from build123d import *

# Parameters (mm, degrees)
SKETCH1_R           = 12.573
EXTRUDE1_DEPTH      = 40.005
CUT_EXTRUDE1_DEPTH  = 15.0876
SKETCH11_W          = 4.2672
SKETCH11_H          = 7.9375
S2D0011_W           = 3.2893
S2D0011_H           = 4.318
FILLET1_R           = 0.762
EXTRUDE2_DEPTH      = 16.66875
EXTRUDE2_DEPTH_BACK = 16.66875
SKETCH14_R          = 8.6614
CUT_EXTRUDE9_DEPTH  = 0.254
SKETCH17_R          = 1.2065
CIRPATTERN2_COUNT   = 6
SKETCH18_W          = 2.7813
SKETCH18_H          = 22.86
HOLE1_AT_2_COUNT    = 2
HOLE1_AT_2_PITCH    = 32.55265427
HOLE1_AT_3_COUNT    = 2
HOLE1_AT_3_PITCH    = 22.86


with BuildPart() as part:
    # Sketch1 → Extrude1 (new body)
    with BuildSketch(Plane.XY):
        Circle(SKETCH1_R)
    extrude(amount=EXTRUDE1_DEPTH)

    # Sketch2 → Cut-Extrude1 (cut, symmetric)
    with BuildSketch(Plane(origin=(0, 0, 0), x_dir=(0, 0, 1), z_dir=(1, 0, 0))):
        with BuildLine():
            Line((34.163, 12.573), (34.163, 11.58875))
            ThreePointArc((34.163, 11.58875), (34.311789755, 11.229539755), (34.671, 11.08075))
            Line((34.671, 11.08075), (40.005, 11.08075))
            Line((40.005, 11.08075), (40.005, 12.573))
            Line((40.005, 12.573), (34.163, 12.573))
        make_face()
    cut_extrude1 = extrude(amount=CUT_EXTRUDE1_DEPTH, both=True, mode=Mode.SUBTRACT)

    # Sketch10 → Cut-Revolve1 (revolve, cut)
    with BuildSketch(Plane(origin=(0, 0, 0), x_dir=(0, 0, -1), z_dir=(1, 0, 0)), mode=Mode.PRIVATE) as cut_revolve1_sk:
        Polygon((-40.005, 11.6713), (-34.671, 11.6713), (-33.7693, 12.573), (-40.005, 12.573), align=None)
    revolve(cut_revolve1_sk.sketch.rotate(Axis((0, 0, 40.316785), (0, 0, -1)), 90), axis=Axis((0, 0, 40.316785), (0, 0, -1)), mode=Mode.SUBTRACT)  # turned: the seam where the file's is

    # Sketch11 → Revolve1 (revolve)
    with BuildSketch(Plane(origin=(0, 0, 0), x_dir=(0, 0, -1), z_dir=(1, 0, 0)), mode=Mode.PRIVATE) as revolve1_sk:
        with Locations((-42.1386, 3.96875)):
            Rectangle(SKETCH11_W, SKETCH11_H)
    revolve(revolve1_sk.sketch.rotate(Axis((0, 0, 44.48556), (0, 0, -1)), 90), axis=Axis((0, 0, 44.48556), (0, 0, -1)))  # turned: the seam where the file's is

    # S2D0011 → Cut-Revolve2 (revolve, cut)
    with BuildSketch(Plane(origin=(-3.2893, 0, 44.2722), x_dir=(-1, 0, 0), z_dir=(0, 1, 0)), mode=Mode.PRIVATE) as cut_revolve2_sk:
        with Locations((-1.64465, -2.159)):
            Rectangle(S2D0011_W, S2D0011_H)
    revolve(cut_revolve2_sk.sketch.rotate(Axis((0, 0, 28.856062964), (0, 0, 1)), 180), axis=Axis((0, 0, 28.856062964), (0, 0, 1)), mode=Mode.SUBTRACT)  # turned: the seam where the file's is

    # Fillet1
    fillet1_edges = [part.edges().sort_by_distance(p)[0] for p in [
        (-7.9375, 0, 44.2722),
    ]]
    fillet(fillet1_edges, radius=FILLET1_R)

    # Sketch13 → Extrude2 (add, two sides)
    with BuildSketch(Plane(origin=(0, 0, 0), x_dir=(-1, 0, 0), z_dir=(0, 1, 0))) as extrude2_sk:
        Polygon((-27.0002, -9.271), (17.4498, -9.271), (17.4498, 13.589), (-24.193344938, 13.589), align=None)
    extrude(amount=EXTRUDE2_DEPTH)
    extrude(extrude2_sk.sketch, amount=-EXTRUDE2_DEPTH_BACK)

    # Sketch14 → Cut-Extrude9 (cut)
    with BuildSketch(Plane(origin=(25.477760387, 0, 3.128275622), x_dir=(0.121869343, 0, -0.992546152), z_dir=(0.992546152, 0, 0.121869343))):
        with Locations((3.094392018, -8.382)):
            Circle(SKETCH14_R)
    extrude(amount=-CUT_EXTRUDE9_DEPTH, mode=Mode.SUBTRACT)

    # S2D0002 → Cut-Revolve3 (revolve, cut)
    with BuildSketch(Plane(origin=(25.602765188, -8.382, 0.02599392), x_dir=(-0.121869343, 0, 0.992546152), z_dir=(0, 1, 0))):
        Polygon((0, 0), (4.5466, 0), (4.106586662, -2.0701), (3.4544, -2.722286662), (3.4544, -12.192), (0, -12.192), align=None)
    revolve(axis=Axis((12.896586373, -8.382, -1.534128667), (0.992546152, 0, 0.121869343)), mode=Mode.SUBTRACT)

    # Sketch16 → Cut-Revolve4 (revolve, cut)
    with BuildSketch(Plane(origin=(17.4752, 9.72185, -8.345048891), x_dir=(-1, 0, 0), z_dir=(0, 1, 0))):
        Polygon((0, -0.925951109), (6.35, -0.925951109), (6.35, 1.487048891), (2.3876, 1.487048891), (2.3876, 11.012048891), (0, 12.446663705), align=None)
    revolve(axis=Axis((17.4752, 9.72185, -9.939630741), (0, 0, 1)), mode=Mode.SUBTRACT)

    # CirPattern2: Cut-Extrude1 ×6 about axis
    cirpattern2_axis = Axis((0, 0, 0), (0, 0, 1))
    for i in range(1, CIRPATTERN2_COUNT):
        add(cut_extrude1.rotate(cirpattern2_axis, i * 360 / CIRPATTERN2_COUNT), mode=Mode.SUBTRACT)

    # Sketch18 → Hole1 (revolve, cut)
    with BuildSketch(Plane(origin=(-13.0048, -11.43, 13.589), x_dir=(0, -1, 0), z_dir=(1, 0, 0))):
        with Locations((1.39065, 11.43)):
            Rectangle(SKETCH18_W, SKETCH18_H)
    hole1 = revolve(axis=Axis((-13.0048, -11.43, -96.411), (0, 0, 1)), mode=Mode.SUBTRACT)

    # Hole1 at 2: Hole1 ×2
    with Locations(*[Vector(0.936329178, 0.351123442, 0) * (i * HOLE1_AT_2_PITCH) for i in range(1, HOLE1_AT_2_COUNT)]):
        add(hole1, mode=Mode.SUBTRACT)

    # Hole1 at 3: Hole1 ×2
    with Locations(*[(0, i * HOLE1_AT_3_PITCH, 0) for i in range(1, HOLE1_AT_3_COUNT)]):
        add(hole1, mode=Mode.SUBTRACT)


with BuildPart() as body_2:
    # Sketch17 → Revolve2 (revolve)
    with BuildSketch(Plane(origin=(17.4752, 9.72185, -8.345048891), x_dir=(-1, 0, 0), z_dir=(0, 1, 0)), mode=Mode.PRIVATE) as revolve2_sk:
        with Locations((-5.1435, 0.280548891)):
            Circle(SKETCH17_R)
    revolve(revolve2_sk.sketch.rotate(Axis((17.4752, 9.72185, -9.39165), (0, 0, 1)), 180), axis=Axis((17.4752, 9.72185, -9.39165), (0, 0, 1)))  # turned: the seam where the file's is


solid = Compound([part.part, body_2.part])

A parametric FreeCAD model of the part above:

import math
import FreeCAD as App
import Part
import Sketcher
from FreeCAD import Vector
Q = App.Units.Quantity


def edges_at(feature, points):
    """Names of the edges that pass closest to the given points."""
    edges = feature.Shape.Edges
    near = lambda p: min(range(len(edges)), key=lambda i: edges[i].distToShape(Part.Vertex(*p))[0])
    return sorted({f"Edge{near(p) + 1}" for p in points})

doc = App.newDocument("Part")
body = doc.addObject("PartDesign::Body", "Body")

# Sketch on XY plane
sketch1 = doc.addObject("Sketcher::SketchObject", "Sketch")
body.addObject(sketch1)
sketch1.AttachmentSupport = (doc.XY_Plane, [""])
sketch1.MapMode = "FlatFace"
sketch1.addGeometry(Part.Circle(Vector(0, 0, 0), Vector(0, 0, 1), 13), False)
sketch1.addConstraint(Sketcher.Constraint("Coincident", 0, 3, -1, 1))
sketch1.addConstraint(Sketcher.Constraint("Diameter", 0, Q("0.99 in")))
pad1 = doc.addObject("PartDesign::Pad", "Pad")
body.addObject(pad1)
pad1.Profile = sketch1
pad1.Length = Q("1.575 in")

# Sketch on YZ plane
sketch2 = doc.addObject("Sketcher::SketchObject", "Sketch001")
body.addObject(sketch2)
sketch2.AttachmentSupport = (doc.YZ_Plane, [""])
sketch2.MapMode = "FlatFace"
sketch2.addGeometry(Part.LineSegment(Vector(-12.6, 34.2, 0), Vector(-11.6, 34.2, 0)), False)
sketch2.addGeometry(Part.ArcOfCircle(Part.Circle(Vector(-11.6, 34.7, 0), Vector(0, 0, 1), 0.5), math.radians(-90), math.radians(0)), False)
sketch2.addGeometry(Part.LineSegment(Vector(-11.1, 34.7, 0), Vector(-11.1, 40, 0)), False)
sketch2.addGeometry(Part.LineSegment(Vector(-11.1, 40, 0), Vector(-12.6, 40, 0)), False)
sketch2.addGeometry(Part.LineSegment(Vector(-12.6, 40, 0), Vector(-12.6, 34.2, 0)), False)
sketch2.addConstraint(Sketcher.Constraint("Tangent", 0, 2, 1, 1))
sketch2.addConstraint(Sketcher.Constraint("Tangent", 1, 2, 2, 1))
sketch2.addConstraint(Sketcher.Constraint("Coincident", 2, 2, 3, 1))
sketch2.addConstraint(Sketcher.Constraint("Coincident", 3, 2, 4, 1))
sketch2.addConstraint(Sketcher.Constraint("Coincident", 4, 2, 0, 1))
sketch2.addConstraint(Sketcher.Constraint("Horizontal", 0))
sketch2.addConstraint(Sketcher.Constraint("Vertical", 2))
sketch2.addConstraint(Sketcher.Constraint("Horizontal", 3))
sketch2.addConstraint(Sketcher.Constraint("Vertical", 4))
sketch2.addConstraint(Sketcher.Constraint("Radius", 1, Q("0.02 in")))
sketch2.addConstraint(Sketcher.Constraint("DistanceY", 2, 1, 2, 2, Q("0.21 in")))
sketch2.addConstraint(Sketcher.Constraint("DistanceY", -1, 1, 1, 3, Q("1.365 in")))
sketch2.addConstraint(Sketcher.Constraint("DistanceX", 3, 2, -1, 1, Q("0.495 in")))
sketch2.addConstraint(Sketcher.Constraint("DistanceX", 0, 1, 0, 2, 0.98425))
pocket1 = doc.addObject("PartDesign::Pocket", "Pocket")
body.addObject(pocket1)
pocket1.Profile = sketch2
pocket1.Length = Q("1.188 in")
pocket1.Midplane = True

# Sketch on YZ plane
sketch3 = doc.addObject("Sketcher::SketchObject", "Sketch002")
body.addObject(sketch3)
sketch3.AttachmentSupport = (doc.YZ_Plane, [""])
sketch3.MapMode = "FlatFace"
sketch3.addGeometry(Part.LineSegment(Vector(11.7, 40, 0), Vector(11.7, 34.7, 0)), False)
sketch3.addGeometry(Part.LineSegment(Vector(11.7, 34.7, 0), Vector(12.6, 33.8, 0)), False)
sketch3.addGeometry(Part.LineSegment(Vector(12.6, 33.8, 0), Vector(12.6, 40, 0)), False)
sketch3.addGeometry(Part.LineSegment(Vector(12.6, 40, 0), Vector(11.7, 40, 0)), False)
sketch3.addConstraint(Sketcher.Constraint("Coincident", 0, 2, 1, 1))
sketch3.addConstraint(Sketcher.Constraint("Coincident", 1, 2, 2, 1))
sketch3.addConstraint(Sketcher.Constraint("Coincident", 2, 2, 3, 1))
sketch3.addConstraint(Sketcher.Constraint("Coincident", 3, 2, 0, 1))
sketch3.addConstraint(Sketcher.Constraint("Vertical", 0))
sketch3.addConstraint(Sketcher.Constraint("Vertical", 2))
sketch3.addConstraint(Sketcher.Constraint("Horizontal", 3))
sketch3.addConstraint(Sketcher.Constraint("Angle", 1, Q("-45 deg")))
sketch3.addConstraint(Sketcher.Constraint("DistanceY", 0, 2, 0, 1, Q("0.21 in")))
sketch3.addConstraint(Sketcher.Constraint("DistanceX", 3, 2, 3, 1, Q("0.0355 in")))
sketch3.addConstraint(Sketcher.Constraint("DistanceY", -1, 1, 0, 2, Q("1.365 in")))
sketch3.addConstraint(Sketcher.Constraint("DistanceX", -1, 1, 1, 2, Q("0.495 in")))
groove = doc.addObject("PartDesign::Groove", "Groove")
body.addObject(groove)
groove.Profile = sketch3
groove.ReferenceAxis = (sketch3, ["V_Axis"])
groove.Angle = 360

# Sketch on YZ plane
sketch4 = doc.addObject("Sketcher::SketchObject", "Sketch003")
body.addObject(sketch4)
sketch4.AttachmentSupport = (doc.YZ_Plane, [""])
sketch4.MapMode = "FlatFace"
sketch4.addGeometry(Part.LineSegment(Vector(7.9, 44.3, 0), Vector(0, 44.3, 0)), False)
sketch4.addGeometry(Part.LineSegment(Vector(0, 44.3, 0), Vector(0, 40, 0)), False)
sketch4.addGeometry(Part.LineSegment(Vector(0, 40, 0), Vector(7.9, 40, 0)), False)
sketch4.addGeometry(Part.LineSegment(Vector(7.9, 40, 0), Vector(7.9, 44.3, 0)), False)
sketch4.addConstraint(Sketcher.Constraint("Coincident", 0, 2, 1, 1))
sketch4.addConstraint(Sketcher.Constraint("Coincident", 1, 2, 2, 1))
sketch4.addConstraint(Sketcher.Constraint("Coincident", 2, 2, 3, 1))
sketch4.addConstraint(Sketcher.Constraint("Coincident", 3, 2, 0, 1))
sketch4.addConstraint(Sketcher.Constraint("Horizontal", 0))
sketch4.addConstraint(Sketcher.Constraint("Vertical", 1))
sketch4.addConstraint(Sketcher.Constraint("Horizontal", 2))
sketch4.addConstraint(Sketcher.Constraint("Vertical", 3))
sketch4.addConstraint(Sketcher.Constraint("PointOnObject", 0, 2, -2))
sketch4.addConstraint(Sketcher.Constraint("DistanceX", 0, 2, 0, 1, Q("0.3125 in")))
sketch4.addConstraint(Sketcher.Constraint("DistanceY", 1, 2, 1, 1, Q("0.168 in")))
sketch4.addConstraint(Sketcher.Constraint("DistanceY", -1, 1, 0, 2, Q("1.743 in")))
revolution = doc.addObject("PartDesign::Revolution", "Revolution")
body.addObject(revolution)
revolution.Profile = sketch4
revolution.ReferenceAxis = (sketch4, ["V_Axis"])
revolution.Angle = 360

# Sketch on XZ plane
sketch5 = doc.addObject("Sketcher::SketchObject", "Sketch004")
body.addObject(sketch5)
sketch5.AttachmentSupport = (doc.XZ_Plane, [""])
sketch5.MapMode = "FlatFace"
sketch5.addGeometry(Part.LineSegment(Vector(0, 44.3, 0), Vector(0, 40, 0)), False)
sketch5.addGeometry(Part.LineSegment(Vector(0, 40, 0), Vector(-3.3, 40, 0)), False)
sketch5.addGeometry(Part.LineSegment(Vector(-3.3, 40, 0), Vector(-3.3, 44.3, 0)), False)
sketch5.addGeometry(Part.LineSegment(Vector(-3.3, 44.3, 0), Vector(0, 44.3, 0)), False)
sketch5.addConstraint(Sketcher.Constraint("Coincident", 0, 2, 1, 1))
sketch5.addConstraint(Sketcher.Constraint("Coincident", 1, 2, 2, 1))
sketch5.addConstraint(Sketcher.Constraint("Coincident", 2, 2, 3, 1))
sketch5.addConstraint(Sketcher.Constraint("Coincident", 3, 2, 0, 1))
sketch5.addConstraint(Sketcher.Constraint("Vertical", 0))
sketch5.addConstraint(Sketcher.Constraint("Horizontal", 1))
sketch5.addConstraint(Sketcher.Constraint("Vertical", 2))
sketch5.addConstraint(Sketcher.Constraint("Horizontal", 3))
sketch5.addConstraint(Sketcher.Constraint("PointOnObject", 0, 2, -2))
sketch5.addConstraint(Sketcher.Constraint("DistanceY", 0, 2, 0, 1, Q("0.17 in")))
sketch5.addConstraint(Sketcher.Constraint("DistanceX", 1, 2, 1, 1, Q("0.1295 in")))
sketch5.addConstraint(Sketcher.Constraint("DistanceY", -1, 1, 0, 2, Q("1.573 in")))
groove2 = doc.addObject("PartDesign::Groove", "Groove001")
body.addObject(groove2)
groove2.Profile = sketch5
groove2.ReferenceAxis = (sketch5, ["V_Axis"])
groove2.Angle = 360
doc.recompute()

fillet = doc.addObject("PartDesign::Fillet", "Fillet")
body.addObject(fillet)
fillet.Base = (groove2, edges_at(groove2, [(-7.938, 0, 44.272)]))
fillet.Radius = Q("0.03 in")

# Sketch on XZ plane
sketch6 = doc.addObject("Sketcher::SketchObject", "Sketch005")
body.addObject(sketch6)
sketch6.AttachmentSupport = (doc.XZ_Plane, [""])
sketch6.MapMode = "FlatFace"
sketch6.addGeometry(Part.LineSegment(Vector(27, -9, 0), Vector(-17, -9, 0)), False)
sketch6.addGeometry(Part.LineSegment(Vector(-17, -9, 0), Vector(-17, 14, 0)), False)
sketch6.addGeometry(Part.LineSegment(Vector(-17, 14, 0), Vector(24, 14, 0)), False)
sketch6.addGeometry(Part.LineSegment(Vector(24, 14, 0), Vector(27, -9, 0)), False)
sketch6.addConstraint(Sketcher.Constraint("Coincident", 0, 2, 1, 1))
sketch6.addConstraint(Sketcher.Constraint("Coincident", 1, 2, 2, 1))
sketch6.addConstraint(Sketcher.Constraint("Coincident", 2, 2, 3, 1))
sketch6.addConstraint(Sketcher.Constraint("Coincident", 3, 2, 0, 1))
sketch6.addConstraint(Sketcher.Constraint("Horizontal", 0))
sketch6.addConstraint(Sketcher.Constraint("Vertical", 1))
sketch6.addConstraint(Sketcher.Constraint("Horizontal", 2))
sketch6.addConstraint(Sketcher.Constraint("DistanceY", 1, 1, 1, 2, Q("0.9 in")))
sketch6.addConstraint(Sketcher.Constraint("Angle", 3, Q("-83 deg")))
sketch6.addConstraint(Sketcher.Constraint("DistanceX", 0, 2, 0, 1, Q("1.75 in")))
sketch6.addConstraint(Sketcher.Constraint("DistanceX", 0, 2, -1, 1, Q("0.687 in")))
sketch6.addConstraint(Sketcher.Constraint("DistanceY", 0, 2, -1, 1, Q("0.365 in")))
pad2 = doc.addObject("PartDesign::Pad", "Pad001")
body.addObject(pad2)
pad2.Profile = sketch6
pad2.Type = "TwoLengths"
pad2.Length = Q("0.65625 in")
pad2.Length2 = Q("0.65625 in")
pad2.Reversed = True

# Sketch on an angled plane
sketch7 = doc.addObject("Sketcher::SketchObject", "Sketch006")
body.addObject(sketch7)
sketch7.Placement = App.Placement(Vector(25.47776, 0, 3.128276), App.Rotation(Vector(0.121869343, 0, -0.992546152), Vector(0, 1.000000001, 0), Vector(0.992546152, 0, 0.121869343), "ZXY"))
sketch7.addGeometry(Part.Circle(Vector(3, -8, 0), Vector(0, 0, 1), 9), False)
sketch7.addConstraint(Sketcher.Constraint("Diameter", 0, Q("0.682 in")))
sketch7.addConstraint(Sketcher.Constraint("DistanceY", 0, 3, -1, 1, Q("0.33 in")))
sketch7.addConstraint(Sketcher.Constraint("DistanceX", -1, 1, 0, 3, 3.094392))
pocket2 = doc.addObject("PartDesign::Pocket", "Pocket001")
body.addObject(pocket2)
pocket2.Profile = sketch7
pocket2.Length = Q("0.01 in")

# Sketch on XZ plane
sketch8 = doc.addObject("Sketcher::SketchObject", "Sketch007")
body.addObject(sketch8)
sketch8.AttachmentSupport = (doc.XZ_Plane, [""])
sketch8.MapMode = "FlatFace"
sketch8.AttachmentOffset = App.Placement(Vector(0, 0, 0.33 * 25.4), App.Rotation())
sketch8.addGeometry(Part.LineSegment(Vector(25, 4.5, 0), Vector(25.6, 0, 0)), False)
sketch8.addGeometry(Part.LineSegment(Vector(25.6, 0, 0), Vector(13.5, -1.5, 0)), False)
sketch8.addGeometry(Part.LineSegment(Vector(13.5, -1.5, 0), Vector(13.1, 2, 0)), False)
sketch8.addGeometry(Part.LineSegment(Vector(13.1, 2, 0), Vector(22.5, 3.1, 0)), False)
sketch8.addGeometry(Part.LineSegment(Vector(22.5, 3.1, 0), Vector(23, 3.8, 0)), False)
sketch8.addGeometry(Part.LineSegment(Vector(23, 3.8, 0), Vector(25, 4.5, 0)), False)
sketch8.addGeometry(Part.LineSegment(Vector(13.5, -1.5, 0), Vector(25.6, 0, 0)), True)  # axis
sketch8.addConstraint(Sketcher.Constraint("Coincident", 0, 2, 1, 1))
sketch8.addConstraint(Sketcher.Constraint("Coincident", 1, 2, 2, 1))
sketch8.addConstraint(Sketcher.Constraint("Coincident", 2, 2, 3, 1))
sketch8.addConstraint(Sketcher.Constraint("Coincident", 3, 2, 4, 1))
sketch8.addConstraint(Sketcher.Constraint("Coincident", 4, 2, 5, 1))
sketch8.addConstraint(Sketcher.Constraint("Coincident", 5, 2, 0, 1))
sketch8.addConstraint(Sketcher.Constraint("Coincident", 6, 1, 1, 2))
sketch8.addConstraint(Sketcher.Constraint("Coincident", 6, 2, 0, 2))
sketch8.addConstraint(Sketcher.Constraint("Perpendicular", 0, 1))
sketch8.addConstraint(Sketcher.Constraint("Perpendicular", 1, 2))
sketch8.addConstraint(Sketcher.Constraint("Perpendicular", 2, 3))
sketch8.addConstraint(Sketcher.Constraint("Angle", 0, Q("-83 deg")))
sketch8.addConstraint(Sketcher.Constraint("Angle", 4, Q("52 deg")))
sketch8.addConstraint(Sketcher.Constraint("Angle", 5, Q("19 deg")))
sketch8.addConstraint(Sketcher.Constraint("Distance", 1, Q("0.48 in")))
sketch8.addConstraint(Sketcher.Constraint("Distance", 0, Q("0.179 in")))
sketch8.addConstraint(Sketcher.Constraint("Distance", 2, Q("0.136 in")))
sketch8.addConstraint(Sketcher.Constraint("Distance", 4, 0.922331))
sketch8.addConstraint(Sketcher.Constraint("DistanceX", -1, 1, 4, 2, 23.047628))
sketch8.addConstraint(Sketcher.Constraint("DistanceY", -1, 1, 4, 2, 3.849689))
groove3 = doc.addObject("PartDesign::Groove", "Groove002")
body.addObject(groove3)
groove3.Profile = sketch8
groove3.ReferenceAxis = (sketch8, ["Axis0"])
groove3.Angle = 360

# Sketch on XZ plane
sketch9 = doc.addObject("Sketcher::SketchObject", "Sketch008")
body.addObject(sketch9)
sketch9.AttachmentSupport = (doc.XZ_Plane, [""])
sketch9.MapMode = "FlatFace"
sketch9.AttachmentOffset = App.Placement(Vector(0, 0, -9.72185), App.Rotation())
sketch9.addGeometry(Part.LineSegment(Vector(17.5, -9.3, 0), Vector(11.1, -9.3, 0)), False)
sketch9.addGeometry(Part.LineSegment(Vector(11.1, -9.3, 0), Vector(11.1, -6.9, 0)), False)
sketch9.addGeometry(Part.LineSegment(Vector(11.1, -6.9, 0), Vector(15.1, -6.9, 0)), False)
sketch9.addGeometry(Part.LineSegment(Vector(15.1, -6.9, 0), Vector(15.1, 2.7, 0)), False)
sketch9.addGeometry(Part.LineSegment(Vector(15.1, 2.7, 0), Vector(17.5, 4.1, 0)), False)
sketch9.addGeometry(Part.LineSegment(Vector(17.5, 4.1, 0), Vector(17.5, -9.3, 0)), False)
sketch9.addGeometry(Part.LineSegment(Vector(17.5, -9.3, 0), Vector(17.5, 4.1, 0)), True)  # axis
sketch9.addConstraint(Sketcher.Constraint("Coincident", 0, 2, 1, 1))
sketch9.addConstraint(Sketcher.Constraint("Coincident", 1, 2, 2, 1))
sketch9.addConstraint(Sketcher.Constraint("Coincident", 2, 2, 3, 1))
sketch9.addConstraint(Sketcher.Constraint("Coincident", 3, 2, 4, 1))
sketch9.addConstraint(Sketcher.Constraint("Coincident", 4, 2, 5, 1))
sketch9.addConstraint(Sketcher.Constraint("Coincident", 5, 2, 0, 1))
sketch9.addConstraint(Sketcher.Constraint("Horizontal", 0))
sketch9.addConstraint(Sketcher.Constraint("Vertical", 1))
sketch9.addConstraint(Sketcher.Constraint("Horizontal", 2))
sketch9.addConstraint(Sketcher.Constraint("Vertical", 3))
sketch9.addConstraint(Sketcher.Constraint("Vertical", 5))
sketch9.addConstraint(Sketcher.Constraint("Vertical", 6))
sketch9.addConstraint(Sketcher.Constraint("Coincident", 6, 1, 5, 2))
sketch9.addConstraint(Sketcher.Constraint("Equal", 5, 6))
sketch9.addConstraint(Sketcher.Constraint("Angle", 4, Q("31 deg")))
sketch9.addConstraint(Sketcher.Constraint("DistanceX", 0, 2, 0, 1, Q("0.25 in")))
sketch9.addConstraint(Sketcher.Constraint("DistanceX", 2, 1, 2, 2, Q("0.156 in")))
sketch9.addConstraint(Sketcher.Constraint("DistanceY", 1, 1, 1, 2, Q("0.095 in")))
sketch9.addConstraint(Sketcher.Constraint("DistanceY", 3, 1, 3, 2, Q("0.375 in")))
sketch9.addConstraint(Sketcher.Constraint("DistanceY", 1, 2, -1, 1, Q("0.27 in")))
sketch9.addConstraint(Sketcher.Constraint("DistanceX", -1, 1, 0, 2, Q("0.438 in")))
groove4 = doc.addObject("PartDesign::Groove", "Groove003")
body.addObject(groove4)
groove4.Profile = sketch9
groove4.ReferenceAxis = (sketch9, ["Axis0"])
groove4.Angle = 360
doc.recompute()

polarpattern = doc.addObject("PartDesign::PolarPattern", "PolarPattern")
body.addObject(polarpattern)
polarpattern.Originals = [pocket1]
polarpattern.Axis = (doc.Z_Axis, [""])
polarpattern.Angle = 360
polarpattern.Occurrences = 6
body.Tip = polarpattern

# Sketch on YZ plane
sketch10 = doc.addObject("Sketcher::SketchObject", "Sketch009")
body.addObject(sketch10)
sketch10.AttachmentSupport = (doc.YZ_Plane, [""])
sketch10.MapMode = "FlatFace"
sketch10.AttachmentOffset = App.Placement(Vector(0, 0, -0.512 * 25.4), App.Rotation())
sketch10.addGeometry(Part.LineSegment(Vector(-11.4, -9.3, 0), Vector(-11.4, 13.6, 0)), False)
sketch10.addGeometry(Part.LineSegment(Vector(-11.4, 13.6, 0), Vector(-14.2, 13.6, 0)), False)
sketch10.addGeometry(Part.LineSegment(Vector(-14.2, 13.6, 0), Vector(-14.2, -9.3, 0)), False)
sketch10.addGeometry(Part.LineSegment(Vector(-14.2, -9.3, 0), Vector(-11.4, -9.3, 0)), False)
sketch10.addGeometry(Part.LineSegment(Vector(-11.4, -9.3, 0), Vector(-11.4, 13.6, 0)), True)  # axis
sketch10.addConstraint(Sketcher.Constraint("Coincident", 0, 2, 1, 1))
sketch10.addConstraint(Sketcher.Constraint("Coincident", 1, 2, 2, 1))
sketch10.addConstraint(Sketcher.Constraint("Coincident", 2, 2, 3, 1))
sketch10.addConstraint(Sketcher.Constraint("Coincident", 3, 2, 0, 1))
sketch10.addConstraint(Sketcher.Constraint("Vertical", 0))
sketch10.addConstraint(Sketcher.Constraint("Horizontal", 1))
sketch10.addConstraint(Sketcher.Constraint("Vertical", 2))
sketch10.addConstraint(Sketcher.Constraint("Horizontal", 3))
sketch10.addConstraint(Sketcher.Constraint("Vertical", 4))
sketch10.addConstraint(Sketcher.Constraint("Coincident", 4, 1, 3, 2))
sketch10.addConstraint(Sketcher.Constraint("Horizontal", 1, 2, 4, 2))
sketch10.addConstraint(Sketcher.Constraint("DistanceY", 0, 1, 0, 2, Q("0.9 in")))
sketch10.addConstraint(Sketcher.Constraint("DistanceX", 0, 2, -1, 1, Q("0.45 in")))
sketch10.addConstraint(Sketcher.Constraint("DistanceX", 1, 2, 1, 1, Q("0.1095 in")))
sketch10.addConstraint(Sketcher.Constraint("DistanceY", -1, 1, 0, 2, Q("0.535 in")))
groove5 = doc.addObject("PartDesign::Groove", "Groove004")
body.addObject(groove5)
groove5.Profile = sketch10
groove5.ReferenceAxis = (sketch10, ["Axis0"])
groove5.Angle = 360
doc.recompute()

datumline = doc.addObject("PartDesign::Line", "DatumLine")
body.addObject(datumline)
datumline.Placement = App.Placement(Vector(0, 0, 0), App.Rotation(Vector(0, 0, 1), Vector(0.936329177, 0.351123442, 0)))
linearpattern = doc.addObject("PartDesign::LinearPattern", "LinearPattern")
body.addObject(linearpattern)
linearpattern.Originals = [groove5]
linearpattern.Direction = (datumline, [""])
linearpattern.Mode = "offset"
linearpattern.Offset = 32.552654
linearpattern.Occurrences = 2
body.Tip = linearpattern
doc.recompute()

linearpattern2 = doc.addObject("PartDesign::LinearPattern", "LinearPattern001")
body.addObject(linearpattern2)
linearpattern2.Originals = [groove5]
linearpattern2.Direction = (doc.Y_Axis, [""])
linearpattern2.Mode = "offset"
linearpattern2.Offset = Q("0.9 in")
linearpattern2.Occurrences = 2
body.Tip = linearpattern2
body2 = doc.addObject("PartDesign::Body", "Body001")

# Sketch on XZ plane
sketch11 = doc.addObject("Sketcher::SketchObject", "Sketch010")
body2.addObject(sketch11)
sketch11.AttachmentSupport = (doc.getObject("XZ_Plane001"), [""])
sketch11.MapMode = "FlatFace"
sketch11.AttachmentOffset = App.Placement(Vector(0, 0, -9.72185), App.Rotation())
sketch11.addGeometry(Part.Circle(Vector(22.6, -8.1, 0), Vector(0, 0, 1), 1.2), False)
sketch11.addGeometry(Part.LineSegment(Vector(17.5, -8.1, 0), Vector(17.5, 1.9, 0)), True)  # axis
sketch11.addConstraint(Sketcher.Constraint("Vertical", 1))
sketch11.addConstraint(Sketcher.Constraint("Horizontal", 0, 3, 1, 1))
sketch11.addConstraint(Sketcher.Constraint("Diameter", 0, Q("0.095 in")))
sketch11.addConstraint(Sketcher.Constraint("DistanceX", -1, 1, 1, 1, Q("0.688 in")))
sketch11.addConstraint(Sketcher.Constraint("DistanceY", 1, 1, 1, 2, 10.0))
sketch11.addConstraint(Sketcher.Constraint("DistanceX", -1, 1, 0, 3, Q("0.8905 in")))
sketch11.addConstraint(Sketcher.Constraint("DistanceY", 0, 3, -1, 1, Q("0.3175 in")))
revolution2 = doc.addObject("PartDesign::Revolution", "Revolution001")
body2.addObject(revolution2)
revolution2.Profile = sketch11
revolution2.ReferenceAxis = (sketch11, ["Axis0"])
revolution2.Angle = 360

doc.recompute()
